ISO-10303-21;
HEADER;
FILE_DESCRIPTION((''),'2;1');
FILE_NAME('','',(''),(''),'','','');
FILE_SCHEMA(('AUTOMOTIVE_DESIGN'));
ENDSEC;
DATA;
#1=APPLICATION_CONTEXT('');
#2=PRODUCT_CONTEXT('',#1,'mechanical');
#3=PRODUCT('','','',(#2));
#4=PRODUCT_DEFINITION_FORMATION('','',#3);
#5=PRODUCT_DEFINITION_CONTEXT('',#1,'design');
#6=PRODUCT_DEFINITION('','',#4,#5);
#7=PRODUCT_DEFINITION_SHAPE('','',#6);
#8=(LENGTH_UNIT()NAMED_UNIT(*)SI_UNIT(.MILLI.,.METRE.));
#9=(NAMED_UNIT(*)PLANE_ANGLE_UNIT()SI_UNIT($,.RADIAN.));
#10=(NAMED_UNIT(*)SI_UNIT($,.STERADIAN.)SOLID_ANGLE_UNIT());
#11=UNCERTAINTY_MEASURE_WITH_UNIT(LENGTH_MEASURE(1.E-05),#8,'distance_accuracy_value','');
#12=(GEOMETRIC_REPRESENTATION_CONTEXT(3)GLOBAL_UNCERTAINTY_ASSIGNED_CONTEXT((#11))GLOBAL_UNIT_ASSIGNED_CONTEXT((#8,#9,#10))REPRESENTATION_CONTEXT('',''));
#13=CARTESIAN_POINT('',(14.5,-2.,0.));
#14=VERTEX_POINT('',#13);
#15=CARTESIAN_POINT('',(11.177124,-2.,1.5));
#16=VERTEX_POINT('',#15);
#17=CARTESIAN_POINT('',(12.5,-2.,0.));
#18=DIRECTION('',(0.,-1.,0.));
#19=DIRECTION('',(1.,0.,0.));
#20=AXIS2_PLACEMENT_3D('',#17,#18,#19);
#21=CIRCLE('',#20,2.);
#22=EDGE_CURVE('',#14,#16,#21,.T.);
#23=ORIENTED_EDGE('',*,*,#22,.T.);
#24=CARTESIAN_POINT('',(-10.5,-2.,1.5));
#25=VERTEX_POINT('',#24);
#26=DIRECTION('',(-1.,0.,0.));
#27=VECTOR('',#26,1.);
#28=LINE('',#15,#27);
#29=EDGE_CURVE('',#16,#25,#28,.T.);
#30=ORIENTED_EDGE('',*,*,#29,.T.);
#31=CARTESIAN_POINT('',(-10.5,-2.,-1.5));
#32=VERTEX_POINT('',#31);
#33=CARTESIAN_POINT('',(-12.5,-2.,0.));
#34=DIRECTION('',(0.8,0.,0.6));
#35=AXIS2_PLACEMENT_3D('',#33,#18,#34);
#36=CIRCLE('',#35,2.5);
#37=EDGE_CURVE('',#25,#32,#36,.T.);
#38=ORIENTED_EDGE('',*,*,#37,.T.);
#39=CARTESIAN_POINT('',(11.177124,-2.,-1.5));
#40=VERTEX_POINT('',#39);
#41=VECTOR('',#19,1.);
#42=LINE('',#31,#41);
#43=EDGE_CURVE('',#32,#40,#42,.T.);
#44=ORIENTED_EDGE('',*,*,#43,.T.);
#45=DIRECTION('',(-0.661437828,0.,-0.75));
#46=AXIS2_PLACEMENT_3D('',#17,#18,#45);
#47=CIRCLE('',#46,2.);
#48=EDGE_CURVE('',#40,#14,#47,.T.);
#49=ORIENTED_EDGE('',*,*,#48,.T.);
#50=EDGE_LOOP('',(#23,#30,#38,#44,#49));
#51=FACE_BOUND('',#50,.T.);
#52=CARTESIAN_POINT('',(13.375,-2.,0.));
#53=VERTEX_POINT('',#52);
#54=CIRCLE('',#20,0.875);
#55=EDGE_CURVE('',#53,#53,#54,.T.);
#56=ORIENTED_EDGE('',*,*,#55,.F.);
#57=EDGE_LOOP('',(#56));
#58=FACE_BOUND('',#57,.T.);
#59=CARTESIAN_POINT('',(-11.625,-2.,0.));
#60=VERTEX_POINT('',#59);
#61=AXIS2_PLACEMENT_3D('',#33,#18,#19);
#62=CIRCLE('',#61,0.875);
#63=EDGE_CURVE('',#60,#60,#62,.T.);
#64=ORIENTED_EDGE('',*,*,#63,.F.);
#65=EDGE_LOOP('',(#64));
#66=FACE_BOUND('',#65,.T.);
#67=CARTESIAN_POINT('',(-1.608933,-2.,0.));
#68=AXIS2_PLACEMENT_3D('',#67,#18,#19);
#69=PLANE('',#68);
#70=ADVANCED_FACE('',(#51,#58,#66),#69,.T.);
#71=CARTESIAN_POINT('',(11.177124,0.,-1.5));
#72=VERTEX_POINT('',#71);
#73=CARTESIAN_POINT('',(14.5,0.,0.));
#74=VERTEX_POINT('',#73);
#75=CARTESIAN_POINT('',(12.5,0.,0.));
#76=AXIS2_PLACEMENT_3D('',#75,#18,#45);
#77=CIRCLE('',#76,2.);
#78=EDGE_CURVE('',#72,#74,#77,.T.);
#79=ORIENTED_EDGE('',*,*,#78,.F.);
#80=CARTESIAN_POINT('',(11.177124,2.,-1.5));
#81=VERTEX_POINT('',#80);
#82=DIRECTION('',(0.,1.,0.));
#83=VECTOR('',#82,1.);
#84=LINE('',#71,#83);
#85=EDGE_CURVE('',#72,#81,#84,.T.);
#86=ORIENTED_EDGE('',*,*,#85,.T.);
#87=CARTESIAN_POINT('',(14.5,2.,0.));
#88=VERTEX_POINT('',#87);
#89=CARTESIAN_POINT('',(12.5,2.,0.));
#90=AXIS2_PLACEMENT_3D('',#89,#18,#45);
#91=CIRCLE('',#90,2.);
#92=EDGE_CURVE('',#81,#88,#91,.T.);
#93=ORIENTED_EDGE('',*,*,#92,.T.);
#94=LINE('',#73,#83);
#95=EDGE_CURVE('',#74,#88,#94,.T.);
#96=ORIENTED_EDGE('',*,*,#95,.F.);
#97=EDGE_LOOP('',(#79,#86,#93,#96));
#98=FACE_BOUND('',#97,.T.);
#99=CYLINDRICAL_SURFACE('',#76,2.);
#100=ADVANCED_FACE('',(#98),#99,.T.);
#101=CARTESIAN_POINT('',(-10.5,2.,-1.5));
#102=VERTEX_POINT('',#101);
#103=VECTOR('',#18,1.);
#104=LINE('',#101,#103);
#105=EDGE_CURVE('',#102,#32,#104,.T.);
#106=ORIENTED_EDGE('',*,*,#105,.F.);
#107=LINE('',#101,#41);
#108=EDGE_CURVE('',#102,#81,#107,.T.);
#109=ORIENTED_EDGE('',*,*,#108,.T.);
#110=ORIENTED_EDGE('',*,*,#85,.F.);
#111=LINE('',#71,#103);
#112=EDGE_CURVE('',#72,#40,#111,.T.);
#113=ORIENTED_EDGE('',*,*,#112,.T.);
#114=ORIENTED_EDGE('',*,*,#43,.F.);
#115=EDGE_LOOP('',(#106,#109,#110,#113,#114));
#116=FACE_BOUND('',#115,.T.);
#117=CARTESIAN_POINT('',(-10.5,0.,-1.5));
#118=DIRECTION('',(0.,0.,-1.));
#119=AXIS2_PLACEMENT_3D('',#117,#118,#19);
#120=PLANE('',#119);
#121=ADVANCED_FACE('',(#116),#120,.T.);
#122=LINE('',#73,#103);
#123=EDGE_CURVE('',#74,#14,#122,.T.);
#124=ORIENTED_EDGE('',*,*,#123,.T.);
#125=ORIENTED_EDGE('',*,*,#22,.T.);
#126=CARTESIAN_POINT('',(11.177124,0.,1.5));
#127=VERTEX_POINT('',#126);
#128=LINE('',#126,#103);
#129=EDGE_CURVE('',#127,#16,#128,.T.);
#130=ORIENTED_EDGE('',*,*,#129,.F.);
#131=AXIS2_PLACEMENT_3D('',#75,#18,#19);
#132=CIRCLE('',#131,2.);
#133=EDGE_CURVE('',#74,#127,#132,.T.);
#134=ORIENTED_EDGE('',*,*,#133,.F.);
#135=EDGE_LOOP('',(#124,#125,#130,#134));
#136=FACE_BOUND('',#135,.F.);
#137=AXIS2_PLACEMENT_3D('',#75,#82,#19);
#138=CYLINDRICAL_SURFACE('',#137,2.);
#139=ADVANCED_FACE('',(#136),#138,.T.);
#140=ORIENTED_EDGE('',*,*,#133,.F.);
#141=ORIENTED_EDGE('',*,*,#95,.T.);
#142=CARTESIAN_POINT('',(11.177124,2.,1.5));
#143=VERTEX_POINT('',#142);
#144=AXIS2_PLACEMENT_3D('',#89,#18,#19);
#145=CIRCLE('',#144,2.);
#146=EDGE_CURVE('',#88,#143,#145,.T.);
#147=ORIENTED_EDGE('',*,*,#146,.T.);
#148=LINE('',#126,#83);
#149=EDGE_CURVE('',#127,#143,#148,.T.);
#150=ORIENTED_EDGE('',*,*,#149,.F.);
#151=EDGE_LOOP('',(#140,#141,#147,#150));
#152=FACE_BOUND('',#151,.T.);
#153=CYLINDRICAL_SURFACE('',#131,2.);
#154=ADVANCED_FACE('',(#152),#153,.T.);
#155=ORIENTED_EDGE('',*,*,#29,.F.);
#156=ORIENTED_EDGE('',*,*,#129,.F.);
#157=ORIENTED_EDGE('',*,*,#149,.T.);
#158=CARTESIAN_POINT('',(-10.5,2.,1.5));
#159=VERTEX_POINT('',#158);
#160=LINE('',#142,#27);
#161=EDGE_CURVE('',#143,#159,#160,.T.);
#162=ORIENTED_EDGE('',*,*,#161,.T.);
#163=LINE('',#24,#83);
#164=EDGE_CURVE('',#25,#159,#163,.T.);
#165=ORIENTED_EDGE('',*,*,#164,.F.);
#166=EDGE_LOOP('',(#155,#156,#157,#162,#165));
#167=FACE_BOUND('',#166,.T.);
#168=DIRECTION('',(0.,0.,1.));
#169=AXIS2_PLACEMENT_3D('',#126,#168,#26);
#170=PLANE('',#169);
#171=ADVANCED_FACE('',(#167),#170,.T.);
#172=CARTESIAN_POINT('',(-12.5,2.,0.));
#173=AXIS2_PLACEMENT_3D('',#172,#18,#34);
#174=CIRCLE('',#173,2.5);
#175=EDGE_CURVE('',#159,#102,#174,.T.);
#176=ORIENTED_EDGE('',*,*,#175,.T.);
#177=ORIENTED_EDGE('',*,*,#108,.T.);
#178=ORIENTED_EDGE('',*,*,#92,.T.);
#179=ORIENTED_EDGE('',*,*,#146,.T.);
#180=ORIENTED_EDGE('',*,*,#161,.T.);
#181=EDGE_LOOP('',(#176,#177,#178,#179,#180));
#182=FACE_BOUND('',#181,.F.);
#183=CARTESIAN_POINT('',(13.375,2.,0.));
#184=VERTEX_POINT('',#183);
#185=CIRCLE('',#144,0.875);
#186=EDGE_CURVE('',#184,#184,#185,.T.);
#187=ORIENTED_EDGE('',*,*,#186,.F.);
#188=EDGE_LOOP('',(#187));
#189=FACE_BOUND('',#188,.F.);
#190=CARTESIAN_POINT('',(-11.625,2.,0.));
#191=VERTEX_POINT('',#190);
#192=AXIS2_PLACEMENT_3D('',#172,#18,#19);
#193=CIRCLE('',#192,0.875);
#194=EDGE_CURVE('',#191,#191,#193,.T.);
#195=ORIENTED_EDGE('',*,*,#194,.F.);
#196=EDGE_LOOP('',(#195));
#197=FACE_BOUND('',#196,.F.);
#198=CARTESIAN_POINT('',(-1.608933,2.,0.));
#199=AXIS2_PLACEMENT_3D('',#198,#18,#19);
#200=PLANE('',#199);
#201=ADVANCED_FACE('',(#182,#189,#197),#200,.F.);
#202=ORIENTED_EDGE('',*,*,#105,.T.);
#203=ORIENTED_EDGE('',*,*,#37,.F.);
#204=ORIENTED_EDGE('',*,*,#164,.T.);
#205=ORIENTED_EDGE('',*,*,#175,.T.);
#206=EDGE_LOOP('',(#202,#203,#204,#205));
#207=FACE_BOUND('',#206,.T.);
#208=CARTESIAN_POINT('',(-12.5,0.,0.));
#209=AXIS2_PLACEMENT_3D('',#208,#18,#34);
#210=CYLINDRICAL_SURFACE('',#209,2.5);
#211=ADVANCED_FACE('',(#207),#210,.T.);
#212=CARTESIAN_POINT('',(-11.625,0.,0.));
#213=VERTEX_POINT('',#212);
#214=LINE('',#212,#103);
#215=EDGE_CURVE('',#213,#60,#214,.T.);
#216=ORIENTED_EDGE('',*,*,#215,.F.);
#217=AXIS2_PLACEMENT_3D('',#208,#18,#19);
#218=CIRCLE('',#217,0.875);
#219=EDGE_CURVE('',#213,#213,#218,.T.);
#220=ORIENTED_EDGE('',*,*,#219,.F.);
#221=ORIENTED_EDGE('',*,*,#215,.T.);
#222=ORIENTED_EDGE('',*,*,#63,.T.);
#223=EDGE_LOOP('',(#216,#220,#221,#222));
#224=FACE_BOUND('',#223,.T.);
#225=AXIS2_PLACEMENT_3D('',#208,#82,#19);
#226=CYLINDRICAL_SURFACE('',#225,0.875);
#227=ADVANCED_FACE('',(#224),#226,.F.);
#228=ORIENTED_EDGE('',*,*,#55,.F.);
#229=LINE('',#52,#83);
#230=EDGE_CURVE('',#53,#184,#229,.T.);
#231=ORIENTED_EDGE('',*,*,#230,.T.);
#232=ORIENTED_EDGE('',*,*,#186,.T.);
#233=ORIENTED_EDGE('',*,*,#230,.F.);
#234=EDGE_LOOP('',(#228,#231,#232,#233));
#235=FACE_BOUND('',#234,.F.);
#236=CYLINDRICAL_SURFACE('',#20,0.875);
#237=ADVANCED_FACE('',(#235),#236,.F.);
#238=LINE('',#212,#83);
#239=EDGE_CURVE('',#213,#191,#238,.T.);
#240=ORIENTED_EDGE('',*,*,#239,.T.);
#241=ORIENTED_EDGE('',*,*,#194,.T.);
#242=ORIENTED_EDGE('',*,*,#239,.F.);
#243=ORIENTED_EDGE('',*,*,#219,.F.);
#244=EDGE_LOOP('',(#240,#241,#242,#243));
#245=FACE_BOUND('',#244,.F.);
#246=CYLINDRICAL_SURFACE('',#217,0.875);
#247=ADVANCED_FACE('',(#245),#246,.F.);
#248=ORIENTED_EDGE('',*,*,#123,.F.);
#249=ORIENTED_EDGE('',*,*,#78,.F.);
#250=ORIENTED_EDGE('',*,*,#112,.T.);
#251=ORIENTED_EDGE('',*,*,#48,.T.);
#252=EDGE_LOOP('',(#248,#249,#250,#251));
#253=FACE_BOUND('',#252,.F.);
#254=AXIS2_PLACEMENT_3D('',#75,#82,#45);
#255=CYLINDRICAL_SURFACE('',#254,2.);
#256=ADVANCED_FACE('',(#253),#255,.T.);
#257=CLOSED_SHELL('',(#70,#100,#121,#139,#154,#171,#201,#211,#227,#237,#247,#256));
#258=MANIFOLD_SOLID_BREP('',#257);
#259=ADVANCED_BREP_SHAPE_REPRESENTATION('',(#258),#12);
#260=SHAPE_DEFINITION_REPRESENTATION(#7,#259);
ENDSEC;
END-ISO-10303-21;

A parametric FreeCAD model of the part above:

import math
import FreeCAD as App
import Part
import Sketcher
from FreeCAD import Vector
Q = App.Units.Quantity

doc = App.newDocument("Part")
body = doc.addObject("PartDesign::Body", "Body")

# Sketch on XZ plane
sketch1 = body.newObject("Sketcher::SketchObject", "Sketch")
sketch1.AttachmentSupport = (doc.getObject("XZ_Plane"), [""])
sketch1.MapMode = "FlatFace"
sketch1.addGeometry([
    Part.ArcOfCircle(Part.Circle(Vector(-12.5, 0, 0), Vector(0, 0, 1), 2.5), math.radians(37), math.radians(323)),  # 0
    Part.LineSegment(Vector(-10.5, -1.5, 0), Vector(11.2, -1.5, 0)),  # 1
    Part.ArcOfCircle(Part.Circle(Vector(12.5, 0, 0), Vector(0, 0, 1), 2), math.radians(-131), math.radians(0)),  # 2
    Part.ArcOfCircle(Part.Circle(Vector(12.5, 0, 0), Vector(0, 0, 1), 2), math.radians(0), math.radians(131)),  # 3
    Part.LineSegment(Vector(11.2, 1.5, 0), Vector(-10.5, 1.5, 0)),  # 4
    Part.Circle(Vector(-12.5, 0, 0), Vector(0, 0, 1), 0.9),  # 5
], False)
sketch1.addConstraint([
    Sketcher.Constraint("Coincident", 0, 2, 1, 1),
    Sketcher.Constraint("Coincident", 1, 2, 2, 1),
    Sketcher.Constraint("Tangent", 2, 2, 3, 1),
    Sketcher.Constraint("Coincident", 3, 2, 4, 1),
    Sketcher.Constraint("Coincident", 4, 2, 0, 1),
    Sketcher.Constraint("Horizontal", 1),
    Sketcher.Constraint("Horizontal", 4),
    Sketcher.Constraint("Coincident", 5, 3, 0, 3),
    Sketcher.Constraint("Equal", 2, 3),
    Sketcher.Constraint("Symmetric", 0, 3, 2, 3, -1, 1),
    Sketcher.Constraint("Symmetric", 1, 2, 3, 2, -1),
    Sketcher.Constraint("PointOnObject", 2, 2, -1),
    Sketcher.Constraint("Radius", 2, Q("2 mm")),
    Sketcher.Constraint("Radius", 0, Q("2.5 mm")),
    Sketcher.Constraint("Diameter", 5, Q("1.75 mm")),
    Sketcher.Constraint("DistanceX", 0, 3, 2, 3, Q("25 mm")),
    Sketcher.Constraint("DistanceX", 0, 3, 0, 2, Q("2 mm")),
])
pad1 = body.newObject("PartDesign::Pad", "Pad")
pad1.Profile = sketch1
pad1.Length = 4
pad1.Midplane = True

# Sketch on XZ plane
sketch2 = body.newObject("Sketcher::SketchObject", "Sketch001")
sketch2.AttachmentSupport = (doc.getObject("XZ_Plane"), [""])
sketch2.MapMode = "FlatFace"
sketch2.AttachmentOffset = App.Placement(Vector(0, 0, 2), App.Rotation())
sketch2.addGeometry(Part.Circle(Vector(12.5, 0, 0), Vector(0, 0, 1), 0.9), False)
sketch2.addConstraint([
    Sketcher.Constraint("PointOnObject", 0, 3, -1),
    Sketcher.Constraint("Diameter", 0, Q("1.75 mm")),
    Sketcher.Constraint("DistanceX", -1, 1, 0, 3, Q("12.5 mm")),
])
pocket1 = body.newObject("PartDesign::Pocket", "Pocket")
pocket1.Profile = sketch2
pocket1.Type = "ThroughAll"

doc.recompute()
